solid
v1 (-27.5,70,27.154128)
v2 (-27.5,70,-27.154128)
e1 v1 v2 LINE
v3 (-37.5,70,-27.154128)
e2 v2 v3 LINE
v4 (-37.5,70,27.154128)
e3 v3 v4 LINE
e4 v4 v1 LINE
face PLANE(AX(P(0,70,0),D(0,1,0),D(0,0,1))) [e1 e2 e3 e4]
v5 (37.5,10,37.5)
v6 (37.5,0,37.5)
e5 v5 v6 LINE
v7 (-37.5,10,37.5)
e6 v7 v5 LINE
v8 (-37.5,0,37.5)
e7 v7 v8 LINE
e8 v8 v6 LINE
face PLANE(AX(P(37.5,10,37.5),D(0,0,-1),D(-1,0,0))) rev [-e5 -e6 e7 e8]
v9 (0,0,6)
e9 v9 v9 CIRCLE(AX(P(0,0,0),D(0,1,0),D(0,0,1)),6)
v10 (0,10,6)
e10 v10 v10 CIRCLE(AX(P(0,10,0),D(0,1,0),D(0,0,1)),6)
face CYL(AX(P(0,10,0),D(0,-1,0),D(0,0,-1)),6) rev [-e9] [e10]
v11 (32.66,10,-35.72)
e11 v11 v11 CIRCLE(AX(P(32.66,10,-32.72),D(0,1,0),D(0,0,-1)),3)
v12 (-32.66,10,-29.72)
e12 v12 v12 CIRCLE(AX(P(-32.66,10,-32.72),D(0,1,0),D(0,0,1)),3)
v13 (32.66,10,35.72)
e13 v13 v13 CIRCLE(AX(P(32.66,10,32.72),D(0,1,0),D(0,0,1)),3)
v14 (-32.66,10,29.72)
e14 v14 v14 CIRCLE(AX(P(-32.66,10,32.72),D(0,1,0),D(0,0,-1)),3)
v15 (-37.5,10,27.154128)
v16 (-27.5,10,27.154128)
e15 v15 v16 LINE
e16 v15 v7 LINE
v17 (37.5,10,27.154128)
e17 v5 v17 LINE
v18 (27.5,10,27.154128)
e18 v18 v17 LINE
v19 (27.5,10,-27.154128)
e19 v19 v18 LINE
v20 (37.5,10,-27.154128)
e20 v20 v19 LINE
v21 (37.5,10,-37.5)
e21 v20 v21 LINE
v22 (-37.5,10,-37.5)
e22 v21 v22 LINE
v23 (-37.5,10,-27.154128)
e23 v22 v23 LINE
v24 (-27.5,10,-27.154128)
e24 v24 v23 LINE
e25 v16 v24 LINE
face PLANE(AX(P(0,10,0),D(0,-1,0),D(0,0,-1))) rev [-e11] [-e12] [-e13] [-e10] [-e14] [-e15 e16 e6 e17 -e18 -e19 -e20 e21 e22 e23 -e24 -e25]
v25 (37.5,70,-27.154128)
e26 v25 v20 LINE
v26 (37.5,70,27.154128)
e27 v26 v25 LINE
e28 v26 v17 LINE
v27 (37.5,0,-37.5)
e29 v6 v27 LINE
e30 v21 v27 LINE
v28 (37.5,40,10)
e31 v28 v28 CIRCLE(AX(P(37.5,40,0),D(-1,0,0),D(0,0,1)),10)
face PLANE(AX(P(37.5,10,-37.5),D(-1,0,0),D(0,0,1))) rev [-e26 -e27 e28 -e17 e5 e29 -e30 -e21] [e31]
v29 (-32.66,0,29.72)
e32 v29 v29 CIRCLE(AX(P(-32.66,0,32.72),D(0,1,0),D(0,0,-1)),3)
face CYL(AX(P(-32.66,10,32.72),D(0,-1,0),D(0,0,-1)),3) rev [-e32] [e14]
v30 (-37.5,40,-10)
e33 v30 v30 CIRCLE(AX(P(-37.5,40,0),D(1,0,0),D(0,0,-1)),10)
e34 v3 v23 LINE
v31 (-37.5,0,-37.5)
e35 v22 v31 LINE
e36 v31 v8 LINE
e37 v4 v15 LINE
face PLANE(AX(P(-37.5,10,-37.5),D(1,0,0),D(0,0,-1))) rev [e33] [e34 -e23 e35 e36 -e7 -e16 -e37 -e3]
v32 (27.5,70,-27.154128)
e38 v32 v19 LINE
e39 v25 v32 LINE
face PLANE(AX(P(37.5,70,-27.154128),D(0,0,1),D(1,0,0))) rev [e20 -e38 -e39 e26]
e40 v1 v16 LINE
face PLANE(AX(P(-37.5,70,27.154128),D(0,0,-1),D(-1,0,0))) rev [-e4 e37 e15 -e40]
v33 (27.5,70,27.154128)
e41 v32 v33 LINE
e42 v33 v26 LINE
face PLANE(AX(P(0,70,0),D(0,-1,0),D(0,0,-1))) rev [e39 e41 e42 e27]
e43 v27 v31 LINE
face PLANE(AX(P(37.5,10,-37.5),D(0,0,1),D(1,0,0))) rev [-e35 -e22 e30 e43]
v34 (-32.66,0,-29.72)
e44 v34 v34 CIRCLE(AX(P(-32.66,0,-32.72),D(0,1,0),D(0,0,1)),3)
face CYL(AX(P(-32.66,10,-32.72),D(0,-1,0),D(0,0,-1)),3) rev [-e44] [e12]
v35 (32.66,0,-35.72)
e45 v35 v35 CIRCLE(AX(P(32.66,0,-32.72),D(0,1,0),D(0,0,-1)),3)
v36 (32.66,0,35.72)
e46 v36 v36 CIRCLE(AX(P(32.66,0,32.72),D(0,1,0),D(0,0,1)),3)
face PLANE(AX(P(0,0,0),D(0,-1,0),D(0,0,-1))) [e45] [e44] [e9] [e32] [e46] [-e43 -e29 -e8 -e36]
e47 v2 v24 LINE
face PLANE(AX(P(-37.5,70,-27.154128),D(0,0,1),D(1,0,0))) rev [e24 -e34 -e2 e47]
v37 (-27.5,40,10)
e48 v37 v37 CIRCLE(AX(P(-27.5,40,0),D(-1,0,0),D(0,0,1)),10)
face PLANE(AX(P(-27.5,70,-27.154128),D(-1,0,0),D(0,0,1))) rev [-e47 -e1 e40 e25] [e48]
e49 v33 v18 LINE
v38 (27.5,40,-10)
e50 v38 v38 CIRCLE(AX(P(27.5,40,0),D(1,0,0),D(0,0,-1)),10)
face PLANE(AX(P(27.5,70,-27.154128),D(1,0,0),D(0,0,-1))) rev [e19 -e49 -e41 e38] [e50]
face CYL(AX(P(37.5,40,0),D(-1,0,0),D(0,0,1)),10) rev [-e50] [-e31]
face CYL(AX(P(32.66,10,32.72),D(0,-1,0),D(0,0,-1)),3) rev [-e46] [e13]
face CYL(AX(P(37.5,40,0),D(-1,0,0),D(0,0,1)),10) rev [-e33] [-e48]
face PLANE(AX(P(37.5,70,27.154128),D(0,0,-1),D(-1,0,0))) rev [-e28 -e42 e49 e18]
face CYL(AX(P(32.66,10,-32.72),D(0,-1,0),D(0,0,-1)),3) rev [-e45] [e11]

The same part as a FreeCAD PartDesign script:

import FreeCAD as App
import Part
import Sketcher


def add_polygon(sketch, points):
    """Adds a closed chain of lines whose ends are joined by coincident constraints."""
    first, n = sketch.GeometryCount, len(points)
    for a, b in zip(points, points[1:] + points[:1]):
        sketch.addGeometry(Part.LineSegment(App.Vector(*a, 0), App.Vector(*b, 0)), False)
    for i in range(n):
        sketch.addConstraint(Sketcher.Constraint("Coincident", first + i, 2, first + (i + 1) % n, 1))

doc = App.newDocument("Part")
body = doc.addObject("PartDesign::Body", "Body")

sketch1 = body.newObject("Sketcher::SketchObject", "Sketch")
sketch1.AttachmentSupport = (doc.getObject("XZ_Plane"), [""])
sketch1.MapMode = "FlatFace"
add_polygon(sketch1, [(-37.5, -37.5), (-37.5, 37.5), (37.5, 37.5), (37.5, -37.5)])
sketch1.addGeometry(Part.Circle(App.Vector(-32.7, 32.7, 0), App.Vector(0, 0, 1), 3), False)
sketch1.addGeometry(Part.Circle(App.Vector(32.7, 32.7, 0), App.Vector(0, 0, 1), 3), False)
sketch1.addGeometry(Part.Circle(App.Vector(-32.7, -32.7, 0), App.Vector(0, 0, 1), 3), False)
sketch1.addGeometry(Part.Circle(App.Vector(0, 0, 0), App.Vector(0, 0, 1), 6), False)
sketch1.addGeometry(Part.Circle(App.Vector(32.7, -32.7, 0), App.Vector(0, 0, 1), 3), False)
sketch1.addConstraint([
    Sketcher.Constraint("Vertical", 0),
    Sketcher.Constraint("Horizontal", 1),
    Sketcher.Constraint("Vertical", 2),
    Sketcher.Constraint("Horizontal", 3),
    Sketcher.Constraint("Coincident", 7, 3, -1, 1),
    Sketcher.Constraint("Equal", 4, 5),
    Sketcher.Constraint("Equal", 5, 6),
    Sketcher.Constraint("Equal", 6, 8),
    Sketcher.Constraint("Symmetric", 5, 3, 6, 3, -1, 1),
    Sketcher.Constraint("Symmetric", 4, 3, 8, 3, -1, 1),
    Sketcher.Constraint("Symmetric", 0, 2, 2, 2, -1, 1),
    Sketcher.Constraint("Symmetric", 4, 3, 5, 3, -2),
    Sketcher.Constraint("Equal", 3, 0),
    Sketcher.Constraint("Diameter", 4, 6.0),
    Sketcher.Constraint("Diameter", 7, 12.0),
    Sketcher.Constraint("DistanceX", 1, 1, 1, 2, 75.0),
    Sketcher.Constraint("DistanceX", 4, 3, -1, 1, 32.66),
    Sketcher.Constraint("DistanceY", -1, 1, 4, 3, 32.72),
])
pad1 = body.newObject("PartDesign::Pad", "Pad")
pad1.Profile = sketch1
pad1.Length = 10
pad1.Reversed = True

sketch2 = body.newObject("Sketcher::SketchObject", "Sketch001")
sketch2.AttachmentSupport = (doc.getObject("XZ_Plane"), [""])
sketch2.MapMode = "FlatFace"
sketch2.AttachmentOffset = App.Placement(App.Vector(0, 0, -10), App.Rotation())
add_polygon(sketch2, [(-38, -27), (-38, 27), (-28, 27), (-28, -27)])
add_polygon(sketch2, [(28, -27), (28, 27), (38, 27), (38, -27)])
sketch2.addConstraint([
    Sketcher.Constraint("Vertical", 0),
    Sketcher.Constraint("Horizontal", 1),
    Sketcher.Constraint("Vertical", 2),
    Sketcher.Constraint("Horizontal", 3),
    Sketcher.Constraint("Vertical", 4),
    Sketcher.Constraint("Horizontal", 5),
    Sketcher.Constraint("Vertical", 6),
    Sketcher.Constraint("Horizontal", 7),
    Sketcher.Constraint("Symmetric", 2, 2, 4, 2, -1, 1),
    Sketcher.Constraint("Symmetric", 0, 2, 6, 2, -1, 1),
    Sketcher.Constraint("Horizontal", 1, 2, 4, 2),
    Sketcher.Constraint("DistanceX", 1, 1, 1, 2, 10.0),
    Sketcher.Constraint("DistanceX", 1, 2, 4, 2, 55.0),
    Sketcher.Constraint("DistanceY", 0, 1, 0, 2, 54.308256),
])
pad2 = body.newObject("PartDesign::Pad", "Pad001")
pad2.Profile = sketch2
pad2.Length = 60
pad2.Reversed = True

sketch3 = body.newObject("Sketcher::SketchObject", "Sketch002")
sketch3.AttachmentSupport = (doc.getObject("YZ_Plane"), [""])
sketch3.MapMode = "FlatFace"
sketch3.AttachmentOffset = App.Placement(App.Vector(0, 0, -37.5), App.Rotation())
sketch3.addGeometry(Part.Circle(App.Vector(40, 0, 0), App.Vector(0, 0, 1), 10), False)
sketch3.addConstraint([
    Sketcher.Constraint("PointOnObject", 0, 3, -1),
    Sketcher.Constraint("Diameter", 0, 20.0),
    Sketcher.Constraint("DistanceX", -1, 1, 0, 3, 40.0),
])
pocket1 = body.newObject("PartDesign::Pocket", "Pocket")
pocket1.Profile = sketch3
pocket1.Type = "ThroughAll"
pocket1.Midplane = True

doc.recompute()
